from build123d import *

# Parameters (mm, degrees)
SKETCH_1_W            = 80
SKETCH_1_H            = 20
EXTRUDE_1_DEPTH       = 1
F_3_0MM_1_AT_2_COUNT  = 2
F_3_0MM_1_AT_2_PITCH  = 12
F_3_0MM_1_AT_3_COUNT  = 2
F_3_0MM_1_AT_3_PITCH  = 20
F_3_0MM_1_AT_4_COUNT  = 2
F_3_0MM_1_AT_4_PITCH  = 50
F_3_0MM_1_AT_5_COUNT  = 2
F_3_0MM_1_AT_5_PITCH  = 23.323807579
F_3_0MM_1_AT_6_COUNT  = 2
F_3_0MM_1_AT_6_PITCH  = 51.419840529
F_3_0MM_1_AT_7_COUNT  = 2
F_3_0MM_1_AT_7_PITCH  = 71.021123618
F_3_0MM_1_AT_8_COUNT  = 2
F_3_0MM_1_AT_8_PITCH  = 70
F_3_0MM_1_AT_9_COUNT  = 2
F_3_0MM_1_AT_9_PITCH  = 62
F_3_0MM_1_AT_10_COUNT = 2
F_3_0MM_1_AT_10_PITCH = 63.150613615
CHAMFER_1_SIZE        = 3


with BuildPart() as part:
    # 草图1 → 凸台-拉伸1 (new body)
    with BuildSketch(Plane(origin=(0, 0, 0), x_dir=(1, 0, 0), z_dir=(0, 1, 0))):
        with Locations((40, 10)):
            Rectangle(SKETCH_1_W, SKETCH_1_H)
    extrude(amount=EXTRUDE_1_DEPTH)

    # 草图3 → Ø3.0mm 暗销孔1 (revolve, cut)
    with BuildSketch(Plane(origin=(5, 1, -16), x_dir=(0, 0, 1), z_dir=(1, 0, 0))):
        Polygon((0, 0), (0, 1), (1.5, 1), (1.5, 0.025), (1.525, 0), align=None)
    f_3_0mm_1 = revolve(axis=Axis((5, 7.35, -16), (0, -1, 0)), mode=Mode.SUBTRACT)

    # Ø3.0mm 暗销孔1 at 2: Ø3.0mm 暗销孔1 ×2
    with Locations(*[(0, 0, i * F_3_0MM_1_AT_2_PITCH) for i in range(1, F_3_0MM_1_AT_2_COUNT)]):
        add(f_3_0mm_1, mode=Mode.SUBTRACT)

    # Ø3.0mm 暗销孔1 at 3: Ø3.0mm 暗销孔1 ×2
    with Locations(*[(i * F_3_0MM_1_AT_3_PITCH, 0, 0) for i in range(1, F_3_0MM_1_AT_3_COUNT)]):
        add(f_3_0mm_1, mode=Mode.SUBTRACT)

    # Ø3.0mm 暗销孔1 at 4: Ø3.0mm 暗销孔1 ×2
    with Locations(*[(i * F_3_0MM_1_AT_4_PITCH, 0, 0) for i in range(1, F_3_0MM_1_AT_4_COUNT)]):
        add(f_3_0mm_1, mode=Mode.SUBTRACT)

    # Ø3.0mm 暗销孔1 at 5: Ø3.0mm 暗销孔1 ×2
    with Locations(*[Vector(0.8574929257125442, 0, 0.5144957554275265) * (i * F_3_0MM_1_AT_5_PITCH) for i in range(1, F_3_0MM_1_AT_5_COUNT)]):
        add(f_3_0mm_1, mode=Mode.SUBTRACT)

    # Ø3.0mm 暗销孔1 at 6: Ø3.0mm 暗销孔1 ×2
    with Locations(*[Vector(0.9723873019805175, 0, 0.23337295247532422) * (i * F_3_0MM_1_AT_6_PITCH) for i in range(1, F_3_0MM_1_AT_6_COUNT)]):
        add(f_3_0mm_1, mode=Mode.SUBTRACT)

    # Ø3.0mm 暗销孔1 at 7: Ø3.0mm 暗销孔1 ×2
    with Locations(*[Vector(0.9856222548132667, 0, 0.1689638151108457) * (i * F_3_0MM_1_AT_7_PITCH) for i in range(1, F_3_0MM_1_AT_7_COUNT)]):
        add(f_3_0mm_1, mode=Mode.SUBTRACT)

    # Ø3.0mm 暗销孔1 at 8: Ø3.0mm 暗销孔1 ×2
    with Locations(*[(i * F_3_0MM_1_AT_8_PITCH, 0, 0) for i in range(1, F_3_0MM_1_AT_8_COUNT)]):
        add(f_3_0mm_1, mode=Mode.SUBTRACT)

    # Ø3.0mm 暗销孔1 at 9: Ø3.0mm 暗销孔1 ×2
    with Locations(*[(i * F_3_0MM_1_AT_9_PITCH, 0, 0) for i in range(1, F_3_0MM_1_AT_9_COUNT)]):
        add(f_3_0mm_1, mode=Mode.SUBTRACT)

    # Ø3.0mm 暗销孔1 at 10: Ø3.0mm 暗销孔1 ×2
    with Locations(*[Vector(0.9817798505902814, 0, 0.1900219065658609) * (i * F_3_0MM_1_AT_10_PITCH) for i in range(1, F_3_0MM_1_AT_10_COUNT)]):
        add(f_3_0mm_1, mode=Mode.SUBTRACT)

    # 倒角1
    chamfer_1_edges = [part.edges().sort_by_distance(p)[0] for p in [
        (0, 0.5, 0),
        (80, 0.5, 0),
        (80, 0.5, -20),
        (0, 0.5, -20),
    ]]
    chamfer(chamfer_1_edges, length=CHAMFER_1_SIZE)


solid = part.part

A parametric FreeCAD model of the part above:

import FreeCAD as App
import Part
import Sketcher

V = App.Vector
Q = App.Units.Quantity


def edges_at(feature, points):
    """Names of the edges that pass closest to the given points."""
    edges = feature.Shape.Edges
    near = lambda p: min(range(len(edges)), key=lambda i: edges[i].distToShape(Part.Vertex(*p))[0])
    return sorted({f"Edge{near(p) + 1}" for p in points})


def add_polygon(sketch, points):
    """Adds a closed chain of lines whose ends are joined by coincident constraints."""
    first, n = sketch.GeometryCount, len(points)
    for a, b in zip(points, points[1:] + points[:1]):
        sketch.addGeometry(Part.LineSegment(App.Vector(*a, 0), App.Vector(*b, 0)), False)
    for i in range(n):
        sketch.addConstraint(Sketcher.Constraint("Coincident", first + i, 2, first + (i + 1) % n, 1))

doc = App.newDocument("Part")
params = doc.addObject("Spreadsheet::Sheet", "Params")
for row, (alias, value) in enumerate([
    ("sketch1_width", "80 mm"),
    ("sketch1_height", "20 mm"),
    ("pad1_length", "1 mm"),
    ("sketch2_width", "1 mm"),
    ("sketch2_height", "1.5 mm"),
    ("groove_angle", "360 deg"),
    ("linearpattern_pitch", "12 mm"),
    ("linearpattern2_pitch", "20 mm"),
    ("linearpattern3_pitch", "50 mm"),
    ("linearpattern4_pitch", "23.323808 mm"),
    ("linearpattern5_pitch", "51.419841 mm"),
    ("linearpattern6_pitch", "71.021124 mm"),
    ("linearpattern7_pitch", "70 mm"),
    ("linearpattern8_pitch", "62 mm"),
    ("linearpattern9_pitch", "63.150614 mm"),
    ("chamfer_size", "3 mm"),
], start=1):
    params.set(f"A{row}", alias)
    params.set(f"B{row}", "=" + value)
    params.setAlias(f"B{row}", alias)

body = doc.addObject("PartDesign::Body", "Body")

# Sketch on XZ plane
sketch1 = body.newObject("Sketcher::SketchObject", "Sketch")
sketch1.AttachmentSupport = (doc.getObject("XZ_Plane"), [""])
sketch1.MapMode = "FlatFace"
add_polygon(sketch1, [(0, -20), (0, 0), (80, 0), (80, -20)])  # lines 0-3
sketch1.addConstraint([
    Sketcher.Constraint("Vertical", 0),
    Sketcher.Constraint("Horizontal", 1),
    Sketcher.Constraint("Vertical", 2),
    Sketcher.Constraint("Horizontal", 3),
    Sketcher.Constraint("Coincident", 0, 2, -1, 1),
    Sketcher.Constraint("DistanceX", 1, 1, 1, 2, Q("80 mm")),
    Sketcher.Constraint("DistanceY", 0, 1, 0, 2, Q("20 mm")),
])
sketch1.setExpression("Constraints[9]", "Params.sketch1_width")
sketch1.setExpression("Constraints[10]", "Params.sketch1_height")
pad1 = body.newObject("PartDesign::Pad", "Pad")
pad1.Profile = sketch1
pad1.setExpression("Length", "Params.pad1_length")
pad1.Reversed = True

# Sketch on YZ plane
sketch2 = body.newObject("Sketcher::SketchObject", "Sketch001")
sketch2.AttachmentSupport = (doc.getObject("YZ_Plane"), [""])
sketch2.MapMode = "FlatFace"
sketch2.AttachmentOffset = App.Placement(V(0, 0, 5), App.Rotation())
add_polygon(sketch2, [(0, -16), (1, -16), (1, -14.475), (0.975, -14.5), (0, -14.5)])  # lines 0-4
sketch2.addGeometry(Part.LineSegment(V(1, -16, 0), V(0, -16, 0)), True)  # axis
sketch2.addConstraint([
    Sketcher.Constraint("Horizontal", 0),
    Sketcher.Constraint("Vertical", 1),
    Sketcher.Constraint("Horizontal", 3),
    Sketcher.Constraint("Vertical", 4),
    Sketcher.Constraint("Horizontal", 5),
    Sketcher.Constraint("Coincident", 5, 1, 0, 2),
    Sketcher.Constraint("PointOnObject", 3, 2, -2),
    Sketcher.Constraint("PointOnObject", 5, 2, -2),
    Sketcher.Constraint("DistanceX", 0, 1, 0, 2, Q("1 mm")),
    Sketcher.Constraint("Angle", 2, Q("-135 deg")),
    Sketcher.Constraint("DistanceY", 4, 2, 4, 1, Q("1.5 mm")),
    Sketcher.Constraint("DistanceY", 0, 2, -1, 1, Q("16 mm")),
    Sketcher.Constraint("DistanceX", 3, 2, 3, 1, Q("0.975 mm")),
])
sketch2.setExpression("Constraints[13]", "Params.sketch2_width")
sketch2.setExpression("Constraints[15]", "Params.sketch2_height")
groove = body.newObject("PartDesign::Groove", "Groove")
groove.Profile = sketch2
groove.ReferenceAxis = (sketch2, ["Axis0"])
groove.setExpression("Angle", "Params.groove_angle")
doc.recompute()

linearpattern = body.newObject("PartDesign::LinearPattern", "LinearPattern")
linearpattern.Originals = [groove]
linearpattern.Direction = (doc.getObject("Z_Axis"), [""])
linearpattern.Mode = "offset"
linearpattern.setExpression("Offset", "Params.linearpattern_pitch")
linearpattern.Occurrences = 2
body.Tip = linearpattern
doc.recompute()

linearpattern2 = body.newObject("PartDesign::LinearPattern", "LinearPattern001")
linearpattern2.Originals = [groove]
linearpattern2.Direction = (doc.getObject("X_Axis"), [""])
linearpattern2.Mode = "offset"
linearpattern2.setExpression("Offset", "Params.linearpattern2_pitch")
linearpattern2.Occurrences = 2
body.Tip = linearpattern2
doc.recompute()

linearpattern3 = body.newObject("PartDesign::LinearPattern", "LinearPattern002")
linearpattern3.Originals = [groove]
linearpattern3.Direction = (doc.getObject("X_Axis"), [""])
linearpattern3.Mode = "offset"
linearpattern3.setExpression("Offset", "Params.linearpattern3_pitch")
linearpattern3.Occurrences = 2
body.Tip = linearpattern3
doc.recompute()

datumline = body.newObject("PartDesign::Line", "DatumLine")
datumline.Placement = App.Placement(V(0, 0, 0), App.Rotation(V(0, 0, 1), V(0.857492926, 0, 0.514495755)))
linearpattern4 = body.newObject("PartDesign::LinearPattern", "LinearPattern003")
linearpattern4.Originals = [groove]
linearpattern4.Direction = (datumline, [""])
linearpattern4.Mode = "offset"
linearpattern4.setExpression("Offset", "Params.linearpattern4_pitch")
linearpattern4.Occurrences = 2
body.Tip = linearpattern4
doc.recompute()

datumline2 = body.newObject("PartDesign::Line", "DatumLine001")
datumline2.Placement = App.Placement(V(0, 0, 0), App.Rotation(V(0, 0, 1), V(0.972387302, 0, 0.233372952)))
linearpattern5 = body.newObject("PartDesign::LinearPattern", "LinearPattern004")
linearpattern5.Originals = [groove]
linearpattern5.Direction = (datumline2, [""])
linearpattern5.Mode = "offset"
linearpattern5.setExpression("Offset", "Params.linearpattern5_pitch")
linearpattern5.Occurrences = 2
body.Tip = linearpattern5
doc.recompute()

datumline3 = body.newObject("PartDesign::Line", "DatumLine002")
datumline3.Placement = App.Placement(V(0, 0, 0), App.Rotation(V(0, 0, 1), V(0.985622255, 0, 0.168963815)))
linearpattern6 = body.newObject("PartDesign::LinearPattern", "LinearPattern005")
linearpattern6.Originals = [groove]
linearpattern6.Direction = (datumline3, [""])
linearpattern6.Mode = "offset"
linearpattern6.setExpression("Offset", "Params.linearpattern6_pitch")
linearpattern6.Occurrences = 2
body.Tip = linearpattern6
doc.recompute()

linearpattern7 = body.newObject("PartDesign::LinearPattern", "LinearPattern006")
linearpattern7.Originals = [groove]
linearpattern7.Direction = (doc.getObject("X_Axis"), [""])
linearpattern7.Mode = "offset"
linearpattern7.setExpression("Offset", "Params.linearpattern7_pitch")
linearpattern7.Occurrences = 2
body.Tip = linearpattern7
doc.recompute()

linearpattern8 = body.newObject("PartDesign::LinearPattern", "LinearPattern007")
linearpattern8.Originals = [groove]
linearpattern8.Direction = (doc.getObject("X_Axis"), [""])
linearpattern8.Mode = "offset"
linearpattern8.setExpression("Offset", "Params.linearpattern8_pitch")
linearpattern8.Occurrences = 2
body.Tip = linearpattern8
doc.recompute()

datumline4 = body.newObject("PartDesign::Line", "DatumLine003")
datumline4.Placement = App.Placement(V(0, 0, 0), App.Rotation(V(0, 0, 1), V(0.981779851, 0, 0.190021907)))
linearpattern9 = body.newObject("PartDesign::LinearPattern", "LinearPattern008")
linearpattern9.Originals = [groove]
linearpattern9.Direction = (datumline4, [""])
linearpattern9.Mode = "offset"
linearpattern9.setExpression("Offset", "Params.linearpattern9_pitch")
linearpattern9.Occurrences = 2
body.Tip = linearpattern9
doc.recompute()

chamfer = body.newObject("PartDesign::Chamfer", "Chamfer")
chamfer.Base = (linearpattern9, edges_at(linearpattern9, [
    (0, 0.5, 0),
    (80, 0.5, 0),
    (80, 0.5, -20),
    (0, 0.5, -20),
]))
chamfer.setExpression("Size", "Params.chamfer_size")

doc.recompute()
